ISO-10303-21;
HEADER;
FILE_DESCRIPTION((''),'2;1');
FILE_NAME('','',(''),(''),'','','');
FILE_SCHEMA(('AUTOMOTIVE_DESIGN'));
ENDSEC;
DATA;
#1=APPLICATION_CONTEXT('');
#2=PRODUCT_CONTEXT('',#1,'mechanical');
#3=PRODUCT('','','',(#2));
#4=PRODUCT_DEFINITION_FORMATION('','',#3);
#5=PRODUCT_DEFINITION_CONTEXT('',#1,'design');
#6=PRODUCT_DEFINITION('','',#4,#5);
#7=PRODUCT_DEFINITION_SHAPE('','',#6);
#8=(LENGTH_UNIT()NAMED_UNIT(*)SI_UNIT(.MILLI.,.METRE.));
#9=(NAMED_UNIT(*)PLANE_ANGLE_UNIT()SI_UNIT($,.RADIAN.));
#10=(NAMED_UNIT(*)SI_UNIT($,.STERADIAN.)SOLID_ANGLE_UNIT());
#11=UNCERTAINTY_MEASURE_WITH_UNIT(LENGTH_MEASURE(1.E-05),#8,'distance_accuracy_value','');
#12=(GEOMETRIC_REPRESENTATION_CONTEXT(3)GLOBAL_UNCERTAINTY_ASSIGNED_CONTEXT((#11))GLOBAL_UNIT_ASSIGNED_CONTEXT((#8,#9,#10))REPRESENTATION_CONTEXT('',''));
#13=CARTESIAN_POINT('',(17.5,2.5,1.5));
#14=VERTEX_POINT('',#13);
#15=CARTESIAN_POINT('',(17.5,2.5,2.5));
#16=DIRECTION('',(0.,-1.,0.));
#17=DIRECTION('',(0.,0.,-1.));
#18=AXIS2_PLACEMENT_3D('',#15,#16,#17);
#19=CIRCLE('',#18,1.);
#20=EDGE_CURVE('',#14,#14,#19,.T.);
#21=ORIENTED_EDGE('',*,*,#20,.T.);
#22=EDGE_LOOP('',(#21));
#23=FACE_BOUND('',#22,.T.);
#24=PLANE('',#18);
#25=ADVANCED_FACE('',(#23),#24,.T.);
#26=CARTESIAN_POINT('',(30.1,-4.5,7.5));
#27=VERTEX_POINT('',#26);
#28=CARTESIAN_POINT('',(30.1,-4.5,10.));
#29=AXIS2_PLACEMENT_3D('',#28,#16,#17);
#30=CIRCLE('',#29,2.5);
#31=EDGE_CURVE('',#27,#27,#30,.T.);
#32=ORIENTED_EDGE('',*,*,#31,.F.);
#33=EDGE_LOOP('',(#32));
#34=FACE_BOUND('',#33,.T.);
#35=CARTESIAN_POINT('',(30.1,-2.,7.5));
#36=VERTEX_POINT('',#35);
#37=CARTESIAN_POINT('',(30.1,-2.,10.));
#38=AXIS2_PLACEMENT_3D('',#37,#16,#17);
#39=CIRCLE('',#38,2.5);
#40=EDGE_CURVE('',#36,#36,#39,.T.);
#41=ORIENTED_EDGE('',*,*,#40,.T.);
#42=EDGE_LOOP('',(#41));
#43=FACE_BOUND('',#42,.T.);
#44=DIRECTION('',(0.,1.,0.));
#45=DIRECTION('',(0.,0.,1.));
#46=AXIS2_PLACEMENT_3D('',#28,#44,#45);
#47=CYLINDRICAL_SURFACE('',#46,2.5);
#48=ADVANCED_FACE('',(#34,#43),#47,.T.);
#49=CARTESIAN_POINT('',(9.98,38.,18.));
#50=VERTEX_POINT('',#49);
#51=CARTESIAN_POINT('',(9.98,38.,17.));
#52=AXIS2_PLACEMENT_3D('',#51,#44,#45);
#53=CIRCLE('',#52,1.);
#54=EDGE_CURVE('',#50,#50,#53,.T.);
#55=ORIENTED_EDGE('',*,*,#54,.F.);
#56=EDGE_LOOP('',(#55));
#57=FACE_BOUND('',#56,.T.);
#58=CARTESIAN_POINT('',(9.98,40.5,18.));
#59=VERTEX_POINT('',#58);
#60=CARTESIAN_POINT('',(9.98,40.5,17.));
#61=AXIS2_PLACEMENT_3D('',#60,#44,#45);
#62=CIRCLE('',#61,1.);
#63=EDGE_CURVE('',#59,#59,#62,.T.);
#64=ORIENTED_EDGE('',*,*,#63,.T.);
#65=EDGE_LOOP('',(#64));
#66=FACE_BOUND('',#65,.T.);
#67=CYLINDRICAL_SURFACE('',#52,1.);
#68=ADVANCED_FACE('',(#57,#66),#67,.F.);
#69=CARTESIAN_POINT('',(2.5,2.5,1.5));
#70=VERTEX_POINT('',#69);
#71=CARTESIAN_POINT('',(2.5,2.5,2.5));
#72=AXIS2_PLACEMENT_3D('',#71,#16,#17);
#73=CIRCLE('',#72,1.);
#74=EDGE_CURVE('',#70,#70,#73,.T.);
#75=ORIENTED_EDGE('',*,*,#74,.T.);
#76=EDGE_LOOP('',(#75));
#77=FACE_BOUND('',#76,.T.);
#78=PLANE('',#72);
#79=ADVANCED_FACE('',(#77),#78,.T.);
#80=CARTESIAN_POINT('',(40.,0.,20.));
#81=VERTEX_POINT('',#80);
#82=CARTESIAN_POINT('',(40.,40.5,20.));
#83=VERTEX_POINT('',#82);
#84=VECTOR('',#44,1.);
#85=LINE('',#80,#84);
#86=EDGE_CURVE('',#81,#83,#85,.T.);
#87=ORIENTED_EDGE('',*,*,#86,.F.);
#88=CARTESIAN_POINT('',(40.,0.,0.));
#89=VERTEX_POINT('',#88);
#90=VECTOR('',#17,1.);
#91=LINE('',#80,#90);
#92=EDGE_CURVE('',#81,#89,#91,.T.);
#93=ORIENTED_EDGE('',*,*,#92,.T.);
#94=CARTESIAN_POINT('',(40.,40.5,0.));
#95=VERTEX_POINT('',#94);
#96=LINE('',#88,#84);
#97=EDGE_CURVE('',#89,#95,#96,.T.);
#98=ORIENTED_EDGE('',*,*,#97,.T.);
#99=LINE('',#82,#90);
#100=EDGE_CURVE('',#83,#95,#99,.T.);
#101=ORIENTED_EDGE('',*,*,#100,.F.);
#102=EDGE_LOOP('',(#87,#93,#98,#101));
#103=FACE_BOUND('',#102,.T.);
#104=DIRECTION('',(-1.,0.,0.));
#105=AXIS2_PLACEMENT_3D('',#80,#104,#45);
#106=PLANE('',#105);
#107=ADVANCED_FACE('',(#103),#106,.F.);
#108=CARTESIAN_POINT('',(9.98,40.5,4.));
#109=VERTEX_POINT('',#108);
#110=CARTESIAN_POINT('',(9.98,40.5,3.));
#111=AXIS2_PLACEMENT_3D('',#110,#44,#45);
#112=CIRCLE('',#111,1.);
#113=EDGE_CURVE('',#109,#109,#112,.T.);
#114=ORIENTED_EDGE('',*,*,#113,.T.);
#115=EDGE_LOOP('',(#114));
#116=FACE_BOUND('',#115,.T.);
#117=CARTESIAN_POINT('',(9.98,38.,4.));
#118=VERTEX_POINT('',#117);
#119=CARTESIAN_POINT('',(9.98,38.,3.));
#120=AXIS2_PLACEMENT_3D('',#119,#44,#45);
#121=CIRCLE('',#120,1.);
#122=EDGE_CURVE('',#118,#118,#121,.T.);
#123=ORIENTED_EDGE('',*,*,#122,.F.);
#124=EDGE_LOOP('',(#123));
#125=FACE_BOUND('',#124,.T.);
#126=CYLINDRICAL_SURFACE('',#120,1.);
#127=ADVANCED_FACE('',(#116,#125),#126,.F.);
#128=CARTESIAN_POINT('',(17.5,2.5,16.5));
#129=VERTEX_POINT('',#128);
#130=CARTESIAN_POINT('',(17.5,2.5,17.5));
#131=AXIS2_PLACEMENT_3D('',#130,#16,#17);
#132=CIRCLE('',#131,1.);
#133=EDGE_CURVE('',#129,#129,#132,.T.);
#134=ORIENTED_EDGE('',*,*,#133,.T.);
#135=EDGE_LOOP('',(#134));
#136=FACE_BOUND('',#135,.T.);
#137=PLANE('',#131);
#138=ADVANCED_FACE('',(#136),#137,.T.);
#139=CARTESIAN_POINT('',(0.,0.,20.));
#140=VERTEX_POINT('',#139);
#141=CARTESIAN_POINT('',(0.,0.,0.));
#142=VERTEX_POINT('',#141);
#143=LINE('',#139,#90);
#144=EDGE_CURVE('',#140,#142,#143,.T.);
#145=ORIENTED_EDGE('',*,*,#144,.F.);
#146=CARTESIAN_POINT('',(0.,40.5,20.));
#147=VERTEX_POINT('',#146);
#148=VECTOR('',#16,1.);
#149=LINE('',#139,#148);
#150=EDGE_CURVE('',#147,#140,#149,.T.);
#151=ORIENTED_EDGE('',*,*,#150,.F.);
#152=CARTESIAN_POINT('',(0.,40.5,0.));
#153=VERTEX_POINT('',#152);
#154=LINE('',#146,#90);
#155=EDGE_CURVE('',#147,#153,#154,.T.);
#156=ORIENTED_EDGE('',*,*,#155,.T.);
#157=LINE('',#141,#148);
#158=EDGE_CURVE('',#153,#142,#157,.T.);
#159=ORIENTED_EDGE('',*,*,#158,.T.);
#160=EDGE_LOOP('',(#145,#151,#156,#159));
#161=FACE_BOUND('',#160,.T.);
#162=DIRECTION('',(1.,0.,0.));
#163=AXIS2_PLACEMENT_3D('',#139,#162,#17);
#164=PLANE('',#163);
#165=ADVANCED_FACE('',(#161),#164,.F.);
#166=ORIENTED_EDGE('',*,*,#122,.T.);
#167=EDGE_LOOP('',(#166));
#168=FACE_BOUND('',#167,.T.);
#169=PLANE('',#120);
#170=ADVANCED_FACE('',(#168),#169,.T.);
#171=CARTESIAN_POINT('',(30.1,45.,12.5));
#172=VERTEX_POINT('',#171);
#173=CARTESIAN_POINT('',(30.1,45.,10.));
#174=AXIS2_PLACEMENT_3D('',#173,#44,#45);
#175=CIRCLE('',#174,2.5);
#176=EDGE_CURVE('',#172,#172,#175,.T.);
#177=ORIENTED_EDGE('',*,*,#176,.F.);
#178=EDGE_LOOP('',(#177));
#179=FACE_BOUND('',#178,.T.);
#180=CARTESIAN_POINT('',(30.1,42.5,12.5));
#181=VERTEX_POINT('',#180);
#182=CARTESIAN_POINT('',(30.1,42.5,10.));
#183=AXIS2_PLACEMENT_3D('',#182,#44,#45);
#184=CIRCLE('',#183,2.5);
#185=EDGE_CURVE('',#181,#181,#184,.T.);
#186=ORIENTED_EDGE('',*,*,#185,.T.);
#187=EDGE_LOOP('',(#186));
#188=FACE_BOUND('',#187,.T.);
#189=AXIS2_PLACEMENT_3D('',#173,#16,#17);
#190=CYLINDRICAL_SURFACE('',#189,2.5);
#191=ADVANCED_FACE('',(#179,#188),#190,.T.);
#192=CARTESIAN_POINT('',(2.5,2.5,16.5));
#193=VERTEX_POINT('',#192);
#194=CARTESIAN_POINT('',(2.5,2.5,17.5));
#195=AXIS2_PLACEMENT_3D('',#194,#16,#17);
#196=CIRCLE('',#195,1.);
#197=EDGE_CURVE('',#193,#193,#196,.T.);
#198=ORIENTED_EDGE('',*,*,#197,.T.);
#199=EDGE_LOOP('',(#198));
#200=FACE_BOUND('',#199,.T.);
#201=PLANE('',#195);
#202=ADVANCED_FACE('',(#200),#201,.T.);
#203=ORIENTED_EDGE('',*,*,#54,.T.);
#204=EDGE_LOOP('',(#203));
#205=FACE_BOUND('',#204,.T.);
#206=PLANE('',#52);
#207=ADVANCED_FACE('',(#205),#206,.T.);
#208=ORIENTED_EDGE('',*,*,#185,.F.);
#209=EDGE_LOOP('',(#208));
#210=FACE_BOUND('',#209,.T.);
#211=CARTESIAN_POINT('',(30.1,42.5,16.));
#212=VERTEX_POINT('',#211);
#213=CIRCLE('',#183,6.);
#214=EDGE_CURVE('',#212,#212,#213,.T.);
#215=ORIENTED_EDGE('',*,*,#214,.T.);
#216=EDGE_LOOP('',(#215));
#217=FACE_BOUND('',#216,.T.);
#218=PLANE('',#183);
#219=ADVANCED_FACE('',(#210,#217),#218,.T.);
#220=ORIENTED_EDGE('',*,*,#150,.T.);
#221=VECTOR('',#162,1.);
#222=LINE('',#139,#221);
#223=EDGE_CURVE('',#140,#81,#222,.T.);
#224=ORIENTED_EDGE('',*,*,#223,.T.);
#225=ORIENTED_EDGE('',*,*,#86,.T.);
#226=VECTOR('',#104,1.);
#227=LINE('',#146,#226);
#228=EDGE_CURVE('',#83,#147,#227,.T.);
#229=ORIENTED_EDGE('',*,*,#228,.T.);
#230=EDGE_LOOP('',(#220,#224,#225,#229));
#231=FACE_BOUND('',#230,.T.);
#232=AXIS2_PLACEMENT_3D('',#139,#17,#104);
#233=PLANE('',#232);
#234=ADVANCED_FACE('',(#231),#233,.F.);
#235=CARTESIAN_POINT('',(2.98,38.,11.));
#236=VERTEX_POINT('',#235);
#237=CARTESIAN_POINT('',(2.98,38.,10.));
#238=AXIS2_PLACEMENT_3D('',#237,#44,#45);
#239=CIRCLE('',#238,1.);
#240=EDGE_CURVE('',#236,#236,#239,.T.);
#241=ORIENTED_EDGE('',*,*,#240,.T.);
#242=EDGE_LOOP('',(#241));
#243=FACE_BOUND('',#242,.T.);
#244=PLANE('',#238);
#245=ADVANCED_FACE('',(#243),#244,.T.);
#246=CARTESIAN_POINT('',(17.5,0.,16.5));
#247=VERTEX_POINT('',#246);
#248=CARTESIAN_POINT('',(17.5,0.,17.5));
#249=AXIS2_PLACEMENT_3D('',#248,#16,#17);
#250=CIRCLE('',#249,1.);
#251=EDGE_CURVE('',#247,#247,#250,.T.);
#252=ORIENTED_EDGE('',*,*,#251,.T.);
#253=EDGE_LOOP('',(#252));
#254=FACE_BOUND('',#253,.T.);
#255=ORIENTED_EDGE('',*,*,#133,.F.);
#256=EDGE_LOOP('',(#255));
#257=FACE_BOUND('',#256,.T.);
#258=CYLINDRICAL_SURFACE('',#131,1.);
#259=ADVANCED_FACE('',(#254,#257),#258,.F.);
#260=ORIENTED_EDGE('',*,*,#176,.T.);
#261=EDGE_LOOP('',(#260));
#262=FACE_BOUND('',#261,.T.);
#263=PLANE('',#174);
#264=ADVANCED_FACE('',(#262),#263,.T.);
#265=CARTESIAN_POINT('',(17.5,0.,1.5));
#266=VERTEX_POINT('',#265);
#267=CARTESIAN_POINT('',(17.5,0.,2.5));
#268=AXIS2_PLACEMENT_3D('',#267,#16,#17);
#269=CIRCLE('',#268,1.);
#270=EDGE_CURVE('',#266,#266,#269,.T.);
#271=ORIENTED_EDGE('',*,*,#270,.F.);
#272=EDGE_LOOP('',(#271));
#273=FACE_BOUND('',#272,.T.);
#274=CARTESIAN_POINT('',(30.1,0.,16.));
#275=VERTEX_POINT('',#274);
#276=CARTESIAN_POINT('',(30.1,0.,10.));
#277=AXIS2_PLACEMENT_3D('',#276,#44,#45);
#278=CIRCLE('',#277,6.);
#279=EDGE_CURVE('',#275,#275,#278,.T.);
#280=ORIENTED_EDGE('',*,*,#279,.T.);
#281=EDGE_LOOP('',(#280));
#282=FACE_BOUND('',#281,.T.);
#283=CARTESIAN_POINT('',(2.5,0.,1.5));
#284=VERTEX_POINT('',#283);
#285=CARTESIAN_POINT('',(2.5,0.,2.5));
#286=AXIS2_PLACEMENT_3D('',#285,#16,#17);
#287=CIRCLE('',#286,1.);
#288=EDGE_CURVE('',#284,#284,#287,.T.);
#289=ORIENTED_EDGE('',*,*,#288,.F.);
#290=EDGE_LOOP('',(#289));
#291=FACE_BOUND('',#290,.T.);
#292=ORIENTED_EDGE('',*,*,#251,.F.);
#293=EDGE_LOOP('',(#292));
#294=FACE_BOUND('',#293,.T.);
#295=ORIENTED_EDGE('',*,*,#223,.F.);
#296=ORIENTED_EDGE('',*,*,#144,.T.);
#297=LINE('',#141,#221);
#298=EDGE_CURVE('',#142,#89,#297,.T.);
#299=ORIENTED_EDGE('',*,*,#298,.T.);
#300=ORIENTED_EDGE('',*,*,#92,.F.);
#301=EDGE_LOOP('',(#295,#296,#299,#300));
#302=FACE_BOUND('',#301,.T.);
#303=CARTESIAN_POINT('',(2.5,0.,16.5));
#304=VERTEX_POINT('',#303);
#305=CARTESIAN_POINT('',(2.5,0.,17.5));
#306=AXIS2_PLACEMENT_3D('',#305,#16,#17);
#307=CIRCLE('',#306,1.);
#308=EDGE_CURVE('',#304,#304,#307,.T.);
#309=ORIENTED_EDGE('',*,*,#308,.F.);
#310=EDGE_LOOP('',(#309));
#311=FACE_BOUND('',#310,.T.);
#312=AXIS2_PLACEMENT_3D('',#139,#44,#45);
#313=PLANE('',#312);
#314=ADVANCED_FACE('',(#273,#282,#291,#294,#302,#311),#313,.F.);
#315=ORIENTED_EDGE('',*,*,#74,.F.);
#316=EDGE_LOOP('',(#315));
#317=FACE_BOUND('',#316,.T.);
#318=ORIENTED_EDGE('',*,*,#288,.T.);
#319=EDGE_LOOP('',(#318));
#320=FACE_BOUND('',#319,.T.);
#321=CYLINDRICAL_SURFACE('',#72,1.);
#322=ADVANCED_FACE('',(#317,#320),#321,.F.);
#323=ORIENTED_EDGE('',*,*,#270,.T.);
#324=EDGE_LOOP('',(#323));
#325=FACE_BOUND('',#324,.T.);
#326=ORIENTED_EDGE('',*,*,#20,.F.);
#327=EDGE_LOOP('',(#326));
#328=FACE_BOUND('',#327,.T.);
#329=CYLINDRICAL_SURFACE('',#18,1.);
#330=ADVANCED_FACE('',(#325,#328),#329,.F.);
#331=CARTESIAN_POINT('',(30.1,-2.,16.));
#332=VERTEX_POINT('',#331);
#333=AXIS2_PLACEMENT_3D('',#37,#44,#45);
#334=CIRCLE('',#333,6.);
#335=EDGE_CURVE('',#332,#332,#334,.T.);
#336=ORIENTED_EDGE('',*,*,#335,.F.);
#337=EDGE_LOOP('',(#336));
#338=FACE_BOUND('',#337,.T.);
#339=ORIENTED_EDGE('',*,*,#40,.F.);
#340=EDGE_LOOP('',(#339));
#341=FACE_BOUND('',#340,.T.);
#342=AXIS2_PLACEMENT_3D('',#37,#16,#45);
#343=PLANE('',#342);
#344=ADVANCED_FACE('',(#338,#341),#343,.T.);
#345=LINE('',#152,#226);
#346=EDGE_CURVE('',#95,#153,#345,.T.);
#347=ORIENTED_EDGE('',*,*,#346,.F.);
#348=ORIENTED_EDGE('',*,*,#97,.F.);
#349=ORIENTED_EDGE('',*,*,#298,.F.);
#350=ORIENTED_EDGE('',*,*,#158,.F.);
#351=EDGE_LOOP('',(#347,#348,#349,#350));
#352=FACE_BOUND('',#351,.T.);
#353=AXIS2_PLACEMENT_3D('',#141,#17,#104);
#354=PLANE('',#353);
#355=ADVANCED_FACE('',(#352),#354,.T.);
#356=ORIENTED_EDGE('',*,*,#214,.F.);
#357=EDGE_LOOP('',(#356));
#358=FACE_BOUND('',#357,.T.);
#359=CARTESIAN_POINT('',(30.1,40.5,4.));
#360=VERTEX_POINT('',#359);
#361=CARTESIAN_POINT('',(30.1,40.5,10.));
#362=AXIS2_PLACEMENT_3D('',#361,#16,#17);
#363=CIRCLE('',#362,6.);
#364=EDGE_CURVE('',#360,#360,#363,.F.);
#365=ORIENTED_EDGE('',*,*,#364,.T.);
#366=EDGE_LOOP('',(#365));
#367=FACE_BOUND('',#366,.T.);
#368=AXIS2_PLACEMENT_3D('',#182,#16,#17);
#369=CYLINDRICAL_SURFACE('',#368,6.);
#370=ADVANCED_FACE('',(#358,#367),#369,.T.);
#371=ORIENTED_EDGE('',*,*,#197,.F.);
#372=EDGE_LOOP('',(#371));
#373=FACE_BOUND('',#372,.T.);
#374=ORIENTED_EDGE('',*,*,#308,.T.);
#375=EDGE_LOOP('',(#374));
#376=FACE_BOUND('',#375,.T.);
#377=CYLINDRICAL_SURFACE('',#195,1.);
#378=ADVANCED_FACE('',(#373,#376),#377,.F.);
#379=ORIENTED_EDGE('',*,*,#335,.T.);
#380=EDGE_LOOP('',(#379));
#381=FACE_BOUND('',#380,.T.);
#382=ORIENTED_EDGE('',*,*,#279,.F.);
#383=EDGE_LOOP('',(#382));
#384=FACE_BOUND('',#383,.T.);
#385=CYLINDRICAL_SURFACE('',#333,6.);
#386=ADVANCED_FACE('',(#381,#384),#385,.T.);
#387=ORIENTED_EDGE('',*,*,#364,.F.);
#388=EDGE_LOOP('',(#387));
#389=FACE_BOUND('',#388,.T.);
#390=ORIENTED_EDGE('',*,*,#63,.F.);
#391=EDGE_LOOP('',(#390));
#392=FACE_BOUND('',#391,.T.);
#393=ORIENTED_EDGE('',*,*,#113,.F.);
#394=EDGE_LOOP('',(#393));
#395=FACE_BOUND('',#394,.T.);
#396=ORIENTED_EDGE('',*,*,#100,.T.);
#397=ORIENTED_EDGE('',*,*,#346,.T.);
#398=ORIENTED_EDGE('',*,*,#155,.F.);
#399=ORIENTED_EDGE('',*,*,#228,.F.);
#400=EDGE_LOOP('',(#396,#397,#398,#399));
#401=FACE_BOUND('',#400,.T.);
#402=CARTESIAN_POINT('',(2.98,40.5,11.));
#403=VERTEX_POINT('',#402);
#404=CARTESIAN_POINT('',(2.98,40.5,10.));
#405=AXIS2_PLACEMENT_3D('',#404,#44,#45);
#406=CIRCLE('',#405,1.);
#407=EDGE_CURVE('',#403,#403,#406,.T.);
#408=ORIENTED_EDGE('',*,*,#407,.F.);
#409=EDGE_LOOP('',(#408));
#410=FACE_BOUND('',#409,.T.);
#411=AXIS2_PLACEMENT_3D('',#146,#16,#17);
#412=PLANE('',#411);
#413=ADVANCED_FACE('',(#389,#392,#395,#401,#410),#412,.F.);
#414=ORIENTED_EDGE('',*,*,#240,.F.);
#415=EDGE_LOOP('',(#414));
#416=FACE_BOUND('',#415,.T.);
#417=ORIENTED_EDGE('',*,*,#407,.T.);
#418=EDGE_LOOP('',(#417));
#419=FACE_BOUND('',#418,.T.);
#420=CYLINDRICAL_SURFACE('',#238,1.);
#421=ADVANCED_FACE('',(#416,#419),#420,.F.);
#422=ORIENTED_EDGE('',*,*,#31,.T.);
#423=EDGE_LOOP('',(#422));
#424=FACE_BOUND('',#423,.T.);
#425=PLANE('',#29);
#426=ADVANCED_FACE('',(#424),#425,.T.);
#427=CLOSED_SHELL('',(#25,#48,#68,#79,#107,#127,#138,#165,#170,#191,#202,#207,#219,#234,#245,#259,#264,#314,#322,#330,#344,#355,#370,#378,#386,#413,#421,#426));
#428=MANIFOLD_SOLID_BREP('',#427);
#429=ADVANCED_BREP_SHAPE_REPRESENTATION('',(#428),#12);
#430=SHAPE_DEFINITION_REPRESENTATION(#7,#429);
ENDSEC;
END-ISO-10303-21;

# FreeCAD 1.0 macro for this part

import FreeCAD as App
import Part
import Sketcher
from FreeCAD import Vector
Q = App.Units.Quantity

doc = App.newDocument("Part")
body = doc.addObject("PartDesign::Body", "Body")

# Sketch on XY plane
sketch1 = body.newObject("Sketcher::SketchObject", "Sketch")
sketch1.AttachmentSupport = (doc.getObject("XY_Plane"), [""])
sketch1.MapMode = "FlatFace"
sketch1.addGeometry([
    Part.LineSegment(Vector(0, 40.5, 0), Vector(0, 0, 0)),
    Part.LineSegment(Vector(0, 0, 0), Vector(40, 0, 0)),
    Part.LineSegment(Vector(40, 0, 0), Vector(40, 40.5, 0)),
    Part.LineSegment(Vector(40, 40.5, 0), Vector(0, 40.5, 0)),
], False)
sketch1.addConstraint([
    Sketcher.Constraint("Coincident", 0, 2, 1, 1),
    Sketcher.Constraint("Coincident", 1, 2, 2, 1),
    Sketcher.Constraint("Coincident", 2, 2, 3, 1),
    Sketcher.Constraint("Coincident", 3, 2, 0, 1),
    Sketcher.Constraint("Vertical", 0),
    Sketcher.Constraint("Horizontal", 1),
    Sketcher.Constraint("Vertical", 2),
    Sketcher.Constraint("Horizontal", 3),
    Sketcher.Constraint("Coincident", 0, 2, -1, 1),
    Sketcher.Constraint("DistanceX", 1, 1, 1, 2, Q("40 mm")),
    Sketcher.Constraint("DistanceY", 0, 2, 0, 1, Q("40.5 mm")),
])
pad1 = body.newObject("PartDesign::Pad", "Pad")
pad1.Profile = sketch1
pad1.Length = 20

# Sketch on XZ plane
sketch2 = body.newObject("Sketcher::SketchObject", "Sketch001")
sketch2.AttachmentSupport = (doc.getObject("XZ_Plane"), [""])
sketch2.MapMode = "FlatFace"
sketch2.AttachmentOffset = App.Placement(Vector(0, 0, -40.5), App.Rotation())
sketch2.addGeometry(Part.Circle(Vector(30.1, 10, 0), Vector(0, 0, 1), 6), False)
sketch2.addConstraint([
    Sketcher.Constraint("Diameter", 0, Q("12 mm")),
    Sketcher.Constraint("DistanceY", -1, 1, 0, 3, Q("10 mm")),
    Sketcher.Constraint("DistanceX", -1, 1, 0, 3, Q("30.1 mm")),
])
pad2 = body.newObject("PartDesign::Pad", "Pad001")
pad2.Profile = sketch2
pad2.Length = 2
pad2.Reversed = True
doc.recompute()

datumplane = body.newObject("PartDesign::Plane", "DatumPlane")
datumplane.AttachmentSupport = (doc.getObject("XZ_Plane"), [""])
datumplane.MapMode = "FlatFace"
datumplane.AttachmentOffset = App.Placement(Vector(0, 0, -20.25), App.Rotation())
mirrored = body.newObject("PartDesign::Mirrored", "Mirrored")
mirrored.Originals = [pad2]
mirrored.MirrorPlane = (datumplane, [""])
body.Tip = mirrored

# Sketch on XZ plane
sketch3 = body.newObject("Sketcher::SketchObject", "Sketch002")
sketch3.AttachmentSupport = (doc.getObject("XZ_Plane"), [""])
sketch3.MapMode = "FlatFace"
sketch3.AttachmentOffset = App.Placement(Vector(0, 0, -42.5), App.Rotation())
sketch3.addGeometry(Part.Circle(Vector(30.1, 10, 0), Vector(0, 0, 1), 2.5), False)
sketch3.addConstraint([
    Sketcher.Constraint("Diameter", 0, Q("5 mm")),
    Sketcher.Constraint("DistanceY", -1, 1, 0, 3, Q("10 mm")),
    Sketcher.Constraint("DistanceX", -1, 1, 0, 3, Q("30.1 mm")),
])
pad3 = body.newObject("PartDesign::Pad", "Pad002")
pad3.Profile = sketch3
pad3.Length = 2.5
pad3.Reversed = True

# Sketch on XZ plane
sketch4 = body.newObject("Sketcher::SketchObject", "Sketch003")
sketch4.AttachmentSupport = (doc.getObject("XZ_Plane"), [""])
sketch4.MapMode = "FlatFace"
sketch4.AttachmentOffset = App.Placement(Vector(0, 0, 2), App.Rotation())
sketch4.addGeometry(Part.Circle(Vector(30.1, 10, 0), Vector(0, 0, 1), 2.5), False)
sketch4.addConstraint([
    Sketcher.Constraint("Diameter", 0, Q("5 mm")),
    Sketcher.Constraint("DistanceY", -1, 1, 0, 3, Q("10 mm")),
    Sketcher.Constraint("DistanceX", -1, 1, 0, 3, Q("30.1 mm")),
])
pad4 = body.newObject("PartDesign::Pad", "Pad003")
pad4.Profile = sketch4
pad4.Length = 2.5

# Sketch on XZ plane
sketch5 = body.newObject("Sketcher::SketchObject", "Sketch004")
sketch5.AttachmentSupport = (doc.getObject("XZ_Plane"), [""])
sketch5.MapMode = "FlatFace"
sketch5.AttachmentOffset = App.Placement(Vector(0, 0, -40.5), App.Rotation())
sketch5.addGeometry([
    Part.Circle(Vector(9.98, 3, 0), Vector(0, 0, 1), 1),
    Part.Circle(Vector(9.98, 17, 0), Vector(0, 0, 1), 1),
    Part.Circle(Vector(2.98, 10, 0), Vector(0, 0, 1), 1),
], False)
sketch5.addConstraint([
    Sketcher.Constraint("Equal", 0, 1),
    Sketcher.Constraint("Equal", 1, 2),
    Sketcher.Constraint("Vertical", 0, 3, 1, 3),
    Sketcher.Constraint("Diameter", 0, Q("2 mm")),
    Sketcher.Constraint("DistanceY", -1, 1, 0, 3, Q("3 mm")),
    Sketcher.Constraint("DistanceY", -1, 1, 1, 3, Q("17 mm")),
    Sketcher.Constraint("DistanceY", -1, 1, 2, 3, Q("10 mm")),
    Sketcher.Constraint("DistanceX", 2, 3, 0, 3, Q("7 mm")),
    Sketcher.Constraint("DistanceX", -1, 1, 0, 3, Q("9.98 mm")),
])
pocket1 = body.newObject("PartDesign::Pocket", "Pocket")
pocket1.Profile = sketch5
pocket1.Length = 2.5
pocket1.Reversed = True

# Sketch on XZ plane
sketch6 = body.newObject("Sketcher::SketchObject", "Sketch005")
sketch6.AttachmentSupport = (doc.getObject("XZ_Plane"), [""])
sketch6.MapMode = "FlatFace"
sketch6.addGeometry([
    Part.Circle(Vector(2.5, 17.5, 0), Vector(0, 0, 1), 1),
    Part.Circle(Vector(17.5, 17.5, 0), Vector(0, 0, 1), 1),
    Part.Circle(Vector(17.5, 2.5, 0), Vector(0, 0, 1), 1),
    Part.Circle(Vector(2.5, 2.5, 0), Vector(0, 0, 1), 1),
], False)
sketch6.addConstraint([
    Sketcher.Constraint("Equal", 0, 1),
    Sketcher.Constraint("Equal", 1, 2),
    Sketcher.Constraint("Equal", 2, 3),
    Sketcher.Constraint("Horizontal", 0, 3, 1, 3),
    Sketcher.Constraint("Horizontal", 2, 3, 3, 3),
    Sketcher.Constraint("Vertical", 1, 3, 2, 3),
    Sketcher.Constraint("Vertical", 0, 3, 3, 3),
    Sketcher.Constraint("Diameter", 0, Q("2 mm")),
    Sketcher.Constraint("DistanceX", 0, 3, 1, 3, Q("15 mm")),
    Sketcher.Constraint("DistanceY", 2, 3, 1, 3, Q("15 mm")),
    Sketcher.Constraint("DistanceX", -1, 1, 0, 3, Q("2.5 mm")),
    Sketcher.Constraint("DistanceY", -1, 1, 0, 3, Q("17.5 mm")),
])
pocket2 = body.newObject("PartDesign::Pocket", "Pocket001")
pocket2.Profile = sketch6
pocket2.Length = 2.5

doc.recompute()
